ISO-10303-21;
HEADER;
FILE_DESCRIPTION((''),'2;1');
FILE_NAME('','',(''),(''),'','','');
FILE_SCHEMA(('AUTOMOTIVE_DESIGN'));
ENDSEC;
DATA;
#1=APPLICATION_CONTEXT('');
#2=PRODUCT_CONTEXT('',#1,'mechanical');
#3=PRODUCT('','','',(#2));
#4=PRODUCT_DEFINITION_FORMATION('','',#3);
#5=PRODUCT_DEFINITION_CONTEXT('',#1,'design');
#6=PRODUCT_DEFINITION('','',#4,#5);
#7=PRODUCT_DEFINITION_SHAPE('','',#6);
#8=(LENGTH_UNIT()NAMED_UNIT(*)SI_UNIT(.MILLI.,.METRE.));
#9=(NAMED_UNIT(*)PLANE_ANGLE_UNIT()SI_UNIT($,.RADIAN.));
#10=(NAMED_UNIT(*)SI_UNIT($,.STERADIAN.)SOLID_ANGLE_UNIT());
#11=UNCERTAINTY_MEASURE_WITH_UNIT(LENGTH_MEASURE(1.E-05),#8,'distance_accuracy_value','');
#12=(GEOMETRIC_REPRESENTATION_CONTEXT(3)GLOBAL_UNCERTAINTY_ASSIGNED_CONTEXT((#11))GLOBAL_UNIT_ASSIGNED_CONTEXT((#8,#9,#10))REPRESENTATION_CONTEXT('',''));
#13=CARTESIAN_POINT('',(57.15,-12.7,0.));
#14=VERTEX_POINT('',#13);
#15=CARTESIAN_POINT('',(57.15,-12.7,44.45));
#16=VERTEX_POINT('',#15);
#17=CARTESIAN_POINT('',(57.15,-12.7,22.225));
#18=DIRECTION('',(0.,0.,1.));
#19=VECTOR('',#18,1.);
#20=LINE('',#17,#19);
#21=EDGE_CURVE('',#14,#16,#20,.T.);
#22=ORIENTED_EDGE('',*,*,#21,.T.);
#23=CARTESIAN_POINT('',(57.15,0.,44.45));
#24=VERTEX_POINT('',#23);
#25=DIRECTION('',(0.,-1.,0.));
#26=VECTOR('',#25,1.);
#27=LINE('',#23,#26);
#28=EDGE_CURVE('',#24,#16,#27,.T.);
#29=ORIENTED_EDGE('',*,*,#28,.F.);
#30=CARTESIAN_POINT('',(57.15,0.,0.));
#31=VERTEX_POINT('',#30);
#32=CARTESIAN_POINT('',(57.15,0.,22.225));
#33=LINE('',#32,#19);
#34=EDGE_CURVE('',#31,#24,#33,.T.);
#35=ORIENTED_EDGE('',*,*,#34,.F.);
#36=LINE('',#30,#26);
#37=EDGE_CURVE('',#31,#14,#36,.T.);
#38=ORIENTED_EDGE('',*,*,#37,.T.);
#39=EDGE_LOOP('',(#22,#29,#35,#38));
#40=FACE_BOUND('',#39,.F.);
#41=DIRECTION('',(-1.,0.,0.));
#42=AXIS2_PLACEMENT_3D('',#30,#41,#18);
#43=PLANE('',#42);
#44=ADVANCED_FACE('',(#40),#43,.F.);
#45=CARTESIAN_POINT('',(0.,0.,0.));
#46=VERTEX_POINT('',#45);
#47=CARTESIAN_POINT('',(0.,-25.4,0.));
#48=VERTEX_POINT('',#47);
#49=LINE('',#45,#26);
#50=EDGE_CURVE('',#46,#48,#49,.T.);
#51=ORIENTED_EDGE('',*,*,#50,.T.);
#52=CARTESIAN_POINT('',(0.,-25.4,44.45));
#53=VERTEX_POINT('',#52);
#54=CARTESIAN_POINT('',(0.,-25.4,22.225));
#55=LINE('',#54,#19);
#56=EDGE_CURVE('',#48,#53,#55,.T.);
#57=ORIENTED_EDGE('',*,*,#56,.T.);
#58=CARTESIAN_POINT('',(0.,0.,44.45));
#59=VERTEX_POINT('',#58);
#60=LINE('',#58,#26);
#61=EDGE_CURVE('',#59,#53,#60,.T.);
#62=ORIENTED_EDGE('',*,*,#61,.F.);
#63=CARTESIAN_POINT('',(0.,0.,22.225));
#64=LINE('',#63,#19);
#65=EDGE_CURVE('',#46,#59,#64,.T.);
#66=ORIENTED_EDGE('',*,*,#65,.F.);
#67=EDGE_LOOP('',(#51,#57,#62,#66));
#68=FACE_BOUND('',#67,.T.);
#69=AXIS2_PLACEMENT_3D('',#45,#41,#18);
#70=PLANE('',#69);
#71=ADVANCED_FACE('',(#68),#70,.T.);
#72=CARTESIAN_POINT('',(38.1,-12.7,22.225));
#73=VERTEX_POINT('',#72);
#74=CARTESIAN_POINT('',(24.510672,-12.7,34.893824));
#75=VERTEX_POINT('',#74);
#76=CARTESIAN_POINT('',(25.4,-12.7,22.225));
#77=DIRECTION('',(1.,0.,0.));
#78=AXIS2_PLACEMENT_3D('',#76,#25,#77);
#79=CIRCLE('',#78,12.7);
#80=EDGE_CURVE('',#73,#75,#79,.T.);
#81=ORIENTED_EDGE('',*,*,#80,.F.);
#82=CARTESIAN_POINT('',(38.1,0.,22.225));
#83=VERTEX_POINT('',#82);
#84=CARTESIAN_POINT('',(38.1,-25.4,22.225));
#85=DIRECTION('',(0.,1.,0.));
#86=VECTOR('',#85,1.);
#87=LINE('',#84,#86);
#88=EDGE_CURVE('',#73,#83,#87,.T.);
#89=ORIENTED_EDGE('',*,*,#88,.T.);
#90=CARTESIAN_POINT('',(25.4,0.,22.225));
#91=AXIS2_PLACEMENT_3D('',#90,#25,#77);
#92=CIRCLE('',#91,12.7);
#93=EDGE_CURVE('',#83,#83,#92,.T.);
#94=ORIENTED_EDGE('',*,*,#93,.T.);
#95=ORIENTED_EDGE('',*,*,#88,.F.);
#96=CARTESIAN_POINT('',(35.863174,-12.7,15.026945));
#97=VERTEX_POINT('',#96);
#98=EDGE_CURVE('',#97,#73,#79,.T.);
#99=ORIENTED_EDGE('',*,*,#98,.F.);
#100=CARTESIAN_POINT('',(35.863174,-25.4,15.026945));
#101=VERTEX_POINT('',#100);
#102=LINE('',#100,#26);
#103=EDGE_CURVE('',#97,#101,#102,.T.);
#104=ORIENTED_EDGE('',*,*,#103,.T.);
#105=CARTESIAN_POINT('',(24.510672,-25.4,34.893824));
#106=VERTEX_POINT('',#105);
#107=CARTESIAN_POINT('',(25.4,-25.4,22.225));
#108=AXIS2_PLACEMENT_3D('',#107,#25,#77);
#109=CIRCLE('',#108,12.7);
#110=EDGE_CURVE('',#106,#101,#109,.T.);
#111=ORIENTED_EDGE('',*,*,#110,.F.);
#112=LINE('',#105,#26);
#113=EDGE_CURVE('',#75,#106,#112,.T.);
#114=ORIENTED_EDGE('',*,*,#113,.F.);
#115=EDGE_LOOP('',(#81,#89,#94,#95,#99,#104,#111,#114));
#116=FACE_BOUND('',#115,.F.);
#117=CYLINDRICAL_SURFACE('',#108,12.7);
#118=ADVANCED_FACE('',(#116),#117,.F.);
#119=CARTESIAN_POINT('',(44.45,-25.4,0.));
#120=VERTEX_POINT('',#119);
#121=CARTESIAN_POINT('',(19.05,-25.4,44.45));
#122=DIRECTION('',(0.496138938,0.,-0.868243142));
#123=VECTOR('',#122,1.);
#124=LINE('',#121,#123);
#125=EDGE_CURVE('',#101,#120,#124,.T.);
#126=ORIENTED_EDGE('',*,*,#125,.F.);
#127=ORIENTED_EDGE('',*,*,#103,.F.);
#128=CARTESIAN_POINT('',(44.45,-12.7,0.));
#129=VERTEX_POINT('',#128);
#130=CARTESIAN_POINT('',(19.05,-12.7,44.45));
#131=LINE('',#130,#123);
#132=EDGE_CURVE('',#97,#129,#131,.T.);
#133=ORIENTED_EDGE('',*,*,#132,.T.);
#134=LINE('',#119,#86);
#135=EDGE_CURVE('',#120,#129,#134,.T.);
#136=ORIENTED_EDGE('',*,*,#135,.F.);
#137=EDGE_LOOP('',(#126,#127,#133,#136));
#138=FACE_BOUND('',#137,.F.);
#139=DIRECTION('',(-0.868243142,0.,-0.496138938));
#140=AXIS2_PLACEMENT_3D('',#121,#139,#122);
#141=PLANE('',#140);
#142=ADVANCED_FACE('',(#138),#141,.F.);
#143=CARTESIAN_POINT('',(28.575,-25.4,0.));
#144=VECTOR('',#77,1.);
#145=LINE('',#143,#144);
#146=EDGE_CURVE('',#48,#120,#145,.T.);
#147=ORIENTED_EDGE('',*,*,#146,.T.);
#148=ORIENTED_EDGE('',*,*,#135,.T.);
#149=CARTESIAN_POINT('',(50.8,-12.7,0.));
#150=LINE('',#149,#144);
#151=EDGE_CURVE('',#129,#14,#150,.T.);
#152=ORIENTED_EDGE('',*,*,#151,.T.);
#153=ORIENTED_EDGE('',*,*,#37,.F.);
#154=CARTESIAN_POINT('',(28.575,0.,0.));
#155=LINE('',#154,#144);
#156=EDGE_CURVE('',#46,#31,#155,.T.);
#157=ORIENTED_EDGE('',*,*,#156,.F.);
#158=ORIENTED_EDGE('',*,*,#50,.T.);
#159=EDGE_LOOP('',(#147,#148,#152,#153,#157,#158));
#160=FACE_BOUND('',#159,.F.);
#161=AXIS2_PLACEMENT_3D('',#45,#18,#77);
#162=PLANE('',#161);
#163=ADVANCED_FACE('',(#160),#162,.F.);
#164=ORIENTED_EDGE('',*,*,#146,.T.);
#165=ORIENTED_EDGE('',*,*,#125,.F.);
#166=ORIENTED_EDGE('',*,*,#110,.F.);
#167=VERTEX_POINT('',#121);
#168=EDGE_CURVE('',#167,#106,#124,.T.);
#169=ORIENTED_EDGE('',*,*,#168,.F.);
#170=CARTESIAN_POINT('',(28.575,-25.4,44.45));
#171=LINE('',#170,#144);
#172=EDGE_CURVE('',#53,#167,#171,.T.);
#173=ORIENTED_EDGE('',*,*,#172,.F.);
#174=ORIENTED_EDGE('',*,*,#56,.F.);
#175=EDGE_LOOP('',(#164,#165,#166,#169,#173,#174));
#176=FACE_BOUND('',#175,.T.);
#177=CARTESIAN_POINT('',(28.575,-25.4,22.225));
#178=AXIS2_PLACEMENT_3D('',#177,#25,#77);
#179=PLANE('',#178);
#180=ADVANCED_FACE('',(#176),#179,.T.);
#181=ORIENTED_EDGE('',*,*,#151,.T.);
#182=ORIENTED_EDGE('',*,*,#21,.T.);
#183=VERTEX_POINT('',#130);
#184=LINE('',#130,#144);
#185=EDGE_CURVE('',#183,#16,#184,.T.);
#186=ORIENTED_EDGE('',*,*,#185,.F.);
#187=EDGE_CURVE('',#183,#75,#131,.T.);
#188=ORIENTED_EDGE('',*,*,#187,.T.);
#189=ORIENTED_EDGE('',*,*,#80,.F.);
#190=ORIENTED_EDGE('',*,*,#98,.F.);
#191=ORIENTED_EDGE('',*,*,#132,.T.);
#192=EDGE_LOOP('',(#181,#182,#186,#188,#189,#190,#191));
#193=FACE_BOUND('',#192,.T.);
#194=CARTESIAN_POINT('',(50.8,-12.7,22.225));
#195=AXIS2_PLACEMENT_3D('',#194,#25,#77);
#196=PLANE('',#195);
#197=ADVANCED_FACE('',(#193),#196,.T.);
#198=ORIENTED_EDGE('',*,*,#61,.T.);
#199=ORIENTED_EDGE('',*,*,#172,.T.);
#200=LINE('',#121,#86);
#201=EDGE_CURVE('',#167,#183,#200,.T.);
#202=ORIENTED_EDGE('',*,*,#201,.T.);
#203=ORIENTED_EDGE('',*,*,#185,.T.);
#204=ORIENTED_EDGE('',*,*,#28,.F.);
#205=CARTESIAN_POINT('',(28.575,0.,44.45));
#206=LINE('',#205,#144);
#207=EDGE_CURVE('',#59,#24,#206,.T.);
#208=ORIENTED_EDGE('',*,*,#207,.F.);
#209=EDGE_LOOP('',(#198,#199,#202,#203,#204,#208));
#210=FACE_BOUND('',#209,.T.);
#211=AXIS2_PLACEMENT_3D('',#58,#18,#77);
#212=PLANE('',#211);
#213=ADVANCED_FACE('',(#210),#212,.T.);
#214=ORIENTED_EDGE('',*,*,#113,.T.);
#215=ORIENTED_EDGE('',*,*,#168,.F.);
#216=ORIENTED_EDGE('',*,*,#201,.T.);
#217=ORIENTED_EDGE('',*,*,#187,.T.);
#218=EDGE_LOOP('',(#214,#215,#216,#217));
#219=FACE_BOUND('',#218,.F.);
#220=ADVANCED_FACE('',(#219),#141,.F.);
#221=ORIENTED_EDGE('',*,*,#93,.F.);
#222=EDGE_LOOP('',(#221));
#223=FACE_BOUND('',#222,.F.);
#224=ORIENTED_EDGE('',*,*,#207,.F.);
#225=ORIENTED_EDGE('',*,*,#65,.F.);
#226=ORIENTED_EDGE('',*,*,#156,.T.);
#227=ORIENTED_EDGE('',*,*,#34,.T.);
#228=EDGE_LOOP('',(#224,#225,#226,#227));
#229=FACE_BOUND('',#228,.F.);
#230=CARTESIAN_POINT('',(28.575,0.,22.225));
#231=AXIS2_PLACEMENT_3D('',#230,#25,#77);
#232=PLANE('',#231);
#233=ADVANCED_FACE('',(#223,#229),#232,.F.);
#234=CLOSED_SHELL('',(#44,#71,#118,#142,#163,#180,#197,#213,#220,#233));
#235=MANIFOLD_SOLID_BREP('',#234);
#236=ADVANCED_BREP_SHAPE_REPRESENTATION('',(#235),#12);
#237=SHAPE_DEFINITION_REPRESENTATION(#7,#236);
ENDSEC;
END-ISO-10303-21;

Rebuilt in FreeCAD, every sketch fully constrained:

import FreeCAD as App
import Part
import Sketcher
from FreeCAD import Vector
Q = App.Units.Quantity


def add_polygon(sketch, points):
    """Adds a closed chain of lines whose ends are joined by coincident constraints."""
    first, n = sketch.GeometryCount, len(points)
    for a, b in zip(points, points[1:] + points[:1]):
        sketch.addGeometry(Part.LineSegment(App.Vector(*a, 0), App.Vector(*b, 0)), False)
    for i in range(n):
        sketch.addConstraint(Sketcher.Constraint("Coincident", first + i, 2, first + (i + 1) % n, 1))

doc = App.newDocument("Part")
body = doc.addObject("PartDesign::Body", "Body")

sketch1 = body.newObject("Sketcher::SketchObject", "Sketch")
sketch1.AttachmentSupport = (doc.getObject("XZ_Plane"), [""])
sketch1.MapMode = "FlatFace"
add_polygon(sketch1, [(0, 44.45), (0, 0), (57.15, 0), (57.15, 44.45)])
sketch1.addConstraint([
    Sketcher.Constraint("Vertical", 0),
    Sketcher.Constraint("Horizontal", 1),
    Sketcher.Constraint("Vertical", 2),
    Sketcher.Constraint("Horizontal", 3),
    Sketcher.Constraint("Coincident", 0, 2, -1, 1),
    Sketcher.Constraint("DistanceX", 1, 1, 1, 2, Q("2.25 in")),
    Sketcher.Constraint("DistanceY", 0, 2, 0, 1, Q("1.75 in")),
])
pad1 = body.newObject("PartDesign::Pad", "Pad")
pad1.Profile = sketch1
pad1.Length = Q("1 in")

sketch2 = body.newObject("Sketcher::SketchObject", "Sketch001")
sketch2.AttachmentSupport = (doc.getObject("XZ_Plane"), [""])
sketch2.MapMode = "FlatFace"
sketch2.AttachmentOffset = App.Placement(Vector(0, 0, 1 * 25.4), App.Rotation())
add_polygon(sketch2, [(44.45, 44.45), (44.45, 0), (57.15, 0), (57.15, 44.45)])
sketch2.addConstraint([
    Sketcher.Constraint("Vertical", 0),
    Sketcher.Constraint("Horizontal", 1),
    Sketcher.Constraint("Vertical", 2),
    Sketcher.Constraint("Horizontal", 3),
    Sketcher.Constraint("PointOnObject", 0, 2, -1),
    Sketcher.Constraint("DistanceX", 1, 1, 1, 2, Q("0.5 in")),
    Sketcher.Constraint("DistanceY", 0, 2, 0, 1, Q("1.75 in")),
    Sketcher.Constraint("DistanceX", -1, 1, 0, 2, Q("1.75 in")),
])
pocket1 = body.newObject("PartDesign::Pocket", "Pocket")
pocket1.Profile = sketch2
pocket1.Length = Q("0.5 in")

sketch3 = body.newObject("Sketcher::SketchObject", "Sketch002")
sketch3.AttachmentSupport = (doc.getObject("XZ_Plane"), [""])
sketch3.MapMode = "FlatFace"
sketch3.AttachmentOffset = App.Placement(Vector(0, 0, 1 * 25.4), App.Rotation())
add_polygon(sketch3, [(19.05, 44.45), (44.45, 0), (44.45, 44.45)])
sketch3.addConstraint([
    Sketcher.Constraint("Vertical", 1),
    Sketcher.Constraint("Horizontal", 2),
    Sketcher.Constraint("PointOnObject", 0, 2, -1),
    Sketcher.Constraint("DistanceX", 2, 2, 2, 1, Q("1 in")),
    Sketcher.Constraint("DistanceY", 1, 1, 1, 2, Q("1.75 in")),
    Sketcher.Constraint("DistanceX", -1, 1, 0, 2, Q("1.75 in")),
])
pocket2 = body.newObject("PartDesign::Pocket", "Pocket001")
pocket2.Profile = sketch3
pocket2.Length = Q("0.5 in")

sketch4 = body.newObject("Sketcher::SketchObject", "Sketch003")
sketch4.AttachmentSupport = (doc.getObject("XZ_Plane"), [""])
sketch4.MapMode = "FlatFace"
sketch4.AttachmentOffset = App.Placement(Vector(0, 0, 1 * 25.4), App.Rotation())
sketch4.addGeometry(Part.Circle(Vector(25.4, 22.225, 0), Vector(0, 0, 1), 12.7), False)
sketch4.addConstraint([
    Sketcher.Constraint("Diameter", 0, Q("1 in")),
    Sketcher.Constraint("DistanceX", -1, 1, 0, 3, Q("1 in")),
    Sketcher.Constraint("DistanceY", -1, 1, 0, 3, Q("0.875 in")),
])
pocket3 = body.newObject("PartDesign::Pocket", "Pocket002")
pocket3.Profile = sketch4
pocket3.Length = Q("1 in")

doc.recompute()
